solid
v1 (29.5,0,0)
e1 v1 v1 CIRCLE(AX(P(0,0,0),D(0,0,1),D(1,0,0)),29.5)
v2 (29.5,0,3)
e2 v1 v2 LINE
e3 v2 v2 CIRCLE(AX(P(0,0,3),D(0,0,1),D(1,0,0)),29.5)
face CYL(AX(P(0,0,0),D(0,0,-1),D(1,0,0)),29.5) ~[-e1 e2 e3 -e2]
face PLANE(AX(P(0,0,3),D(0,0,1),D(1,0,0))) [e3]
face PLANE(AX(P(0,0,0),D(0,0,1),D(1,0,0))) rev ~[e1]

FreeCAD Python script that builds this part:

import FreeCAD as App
import Part
import Sketcher
Q = App.Units.Quantity

doc = App.newDocument("Part")
body = doc.addObject("PartDesign::Body", "Body")

# Sketch on XY plane
sketch1 = doc.addObject("Sketcher::SketchObject", "Sketch")
body.addObject(sketch1)
sketch1.AttachmentSupport = (doc.XY_Plane, [""])
sketch1.MapMode = "FlatFace"
sketch1.addGeometry(Part.Circle(App.Vector(0, 0, 0), App.Vector(0, 0, 1), 29.5), False)
sketch1.addConstraint(Sketcher.Constraint("Coincident", 0, 3, -1, 1))
sketch1.addConstraint(Sketcher.Constraint("Diameter", 0, Q("59 mm")))
pad1 = doc.addObject("PartDesign::Pad", "Pad")
body.addObject(pad1)
pad1.Profile = sketch1
pad1.Length = 3

doc.recompute()
